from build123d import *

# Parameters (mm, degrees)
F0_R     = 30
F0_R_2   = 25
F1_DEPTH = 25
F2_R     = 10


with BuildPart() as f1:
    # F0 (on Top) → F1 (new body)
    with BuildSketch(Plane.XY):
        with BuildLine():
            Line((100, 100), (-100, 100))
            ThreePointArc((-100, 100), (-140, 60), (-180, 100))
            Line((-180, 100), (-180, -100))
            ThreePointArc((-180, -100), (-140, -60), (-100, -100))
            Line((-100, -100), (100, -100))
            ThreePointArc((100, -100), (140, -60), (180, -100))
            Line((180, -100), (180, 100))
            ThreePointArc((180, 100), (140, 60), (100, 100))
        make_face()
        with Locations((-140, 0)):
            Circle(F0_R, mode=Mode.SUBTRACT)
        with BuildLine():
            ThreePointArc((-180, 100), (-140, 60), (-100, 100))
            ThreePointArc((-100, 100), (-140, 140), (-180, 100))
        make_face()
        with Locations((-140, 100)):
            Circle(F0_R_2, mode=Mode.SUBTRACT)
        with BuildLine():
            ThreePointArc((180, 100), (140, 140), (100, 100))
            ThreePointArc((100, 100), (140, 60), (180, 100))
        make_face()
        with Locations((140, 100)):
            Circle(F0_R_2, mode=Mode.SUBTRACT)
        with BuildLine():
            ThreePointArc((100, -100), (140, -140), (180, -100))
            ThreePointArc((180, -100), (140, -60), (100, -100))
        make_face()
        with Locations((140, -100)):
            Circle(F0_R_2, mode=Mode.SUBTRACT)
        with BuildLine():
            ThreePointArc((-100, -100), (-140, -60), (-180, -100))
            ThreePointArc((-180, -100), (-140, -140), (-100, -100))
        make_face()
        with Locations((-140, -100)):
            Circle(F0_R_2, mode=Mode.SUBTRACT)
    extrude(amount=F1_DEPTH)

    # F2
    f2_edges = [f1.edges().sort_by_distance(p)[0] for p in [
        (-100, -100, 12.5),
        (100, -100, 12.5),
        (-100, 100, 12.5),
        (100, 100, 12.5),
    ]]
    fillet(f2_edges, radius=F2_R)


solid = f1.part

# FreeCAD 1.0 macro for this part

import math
import FreeCAD as App
import Part
import Sketcher
from FreeCAD import Vector


def edges_at(feature, points):
    """Names of the edges that pass closest to the given points."""
    edges = feature.Shape.Edges
    near = lambda p: min(range(len(edges)), key=lambda i: edges[i].distToShape(Part.Vertex(*p))[0])
    return sorted({f"Edge{near(p) + 1}" for p in points})

doc = App.newDocument("Part")
body = doc.addObject("PartDesign::Body", "Body")

# Sketch on XY plane
sketch1 = doc.addObject("Sketcher::SketchObject", "Sketch")
body.addObject(sketch1)
sketch1.AttachmentSupport = (doc.XY_Plane, [""])
sketch1.MapMode = "FlatFace"
sketch1.addGeometry([
    Part.LineSegment(Vector(100, 100, 0), Vector(-100, 100, 0)),  # 0
    Part.ArcOfCircle(Part.Circle(Vector(-140, 100, 0), Vector(0, 0, 1), 40), math.radians(0), math.radians(180)),  # 1
    Part.LineSegment(Vector(-180, 100, 0), Vector(-180, -100, 0)),  # 2
    Part.ArcOfCircle(Part.Circle(Vector(-140, -100, 0), Vector(0, 0, 1), 40), math.radians(180), math.radians(360)),  # 3
    Part.LineSegment(Vector(-100, -100, 0), Vector(100, -100, 0)),  # 4
    Part.ArcOfCircle(Part.Circle(Vector(140, -100, 0), Vector(0, 0, 1), 40), math.radians(180), math.radians(360)),  # 5
    Part.LineSegment(Vector(180, -100, 0), Vector(180, 100, 0)),  # 6
    Part.ArcOfCircle(Part.Circle(Vector(140, 100, 0), Vector(0, 0, 1), 40), math.radians(0), math.radians(180)),  # 7
    Part.Circle(Vector(-140, -100, 0), Vector(0, 0, 1), 25),  # 8
    Part.Circle(Vector(140, -100, 0), Vector(0, 0, 1), 25),  # 9
    Part.Circle(Vector(-140, 0, 0), Vector(0, 0, 1), 30),  # 10
    Part.Circle(Vector(-140, 100, 0), Vector(0, 0, 1), 25),  # 11
    Part.Circle(Vector(140, 100, 0), Vector(0, 0, 1), 25),  # 12
], False)
sketch1.addConstraint([
    Sketcher.Constraint("Coincident", 0, 2, 1, 1),
    Sketcher.Constraint("Tangent", 1, 2, 2, 1),
    Sketcher.Constraint("Tangent", 2, 2, 3, 1),
    Sketcher.Constraint("Coincident", 3, 2, 4, 1),
    Sketcher.Constraint("Coincident", 4, 2, 5, 1),
    Sketcher.Constraint("Tangent", 5, 2, 6, 1),
    Sketcher.Constraint("Tangent", 6, 2, 7, 1),
    Sketcher.Constraint("Coincident", 7, 2, 0, 1),
    Sketcher.Constraint("Horizontal", 0),
    Sketcher.Constraint("Vertical", 2),
    Sketcher.Constraint("Horizontal", 4),
    Sketcher.Constraint("Vertical", 6),
    Sketcher.Constraint("Coincident", 8, 3, 3, 3),
    Sketcher.Constraint("Coincident", 9, 3, 5, 3),
    Sketcher.Constraint("Coincident", 11, 3, 1, 3),
    Sketcher.Constraint("Coincident", 12, 3, 7, 3),
    Sketcher.Constraint("Equal", 1, 3),
    Sketcher.Constraint("Equal", 3, 5),
    Sketcher.Constraint("Equal", 5, 7),
    Sketcher.Constraint("Equal", 8, 9),
    Sketcher.Constraint("Equal", 9, 11),
    Sketcher.Constraint("Equal", 11, 12),
    Sketcher.Constraint("Symmetric", 1, 3, 5, 3, -1, 1),
    Sketcher.Constraint("PointOnObject", 10, 3, -1),
    Sketcher.Constraint("Horizontal", 3, 3, 5, 3),
    Sketcher.Constraint("Horizontal", 1, 3, 7, 3),
    Sketcher.Constraint("Horizontal", 12, 3, 0, 2),
    Sketcher.Constraint("Horizontal", 2, 2, 3, 2),
    Sketcher.Constraint("Vertical", 8, 3, 10, 3),
    Sketcher.Constraint("Equal", 4, 2),
    Sketcher.Constraint("Diameter", 8, 50.0),
    Sketcher.Constraint("Diameter", 10, 60.0),
    Sketcher.Constraint("Radius", 1, 40.0),
    Sketcher.Constraint("DistanceX", 0, 2, 0, 1, 200.0),
])
pad1 = doc.addObject("PartDesign::Pad", "Pad")
body.addObject(pad1)
pad1.Profile = sketch1
pad1.Length = 25
doc.recompute()

fillet = doc.addObject("PartDesign::Fillet", "Fillet")
body.addObject(fillet)
fillet.Base = (pad1, edges_at(pad1, [
    (-100, -100, 12.5),
    (100, -100, 12.5),
    (-100, 100, 12.5),
    (100, 100, 12.5),
]))
fillet.Radius = 10

doc.recompute()
